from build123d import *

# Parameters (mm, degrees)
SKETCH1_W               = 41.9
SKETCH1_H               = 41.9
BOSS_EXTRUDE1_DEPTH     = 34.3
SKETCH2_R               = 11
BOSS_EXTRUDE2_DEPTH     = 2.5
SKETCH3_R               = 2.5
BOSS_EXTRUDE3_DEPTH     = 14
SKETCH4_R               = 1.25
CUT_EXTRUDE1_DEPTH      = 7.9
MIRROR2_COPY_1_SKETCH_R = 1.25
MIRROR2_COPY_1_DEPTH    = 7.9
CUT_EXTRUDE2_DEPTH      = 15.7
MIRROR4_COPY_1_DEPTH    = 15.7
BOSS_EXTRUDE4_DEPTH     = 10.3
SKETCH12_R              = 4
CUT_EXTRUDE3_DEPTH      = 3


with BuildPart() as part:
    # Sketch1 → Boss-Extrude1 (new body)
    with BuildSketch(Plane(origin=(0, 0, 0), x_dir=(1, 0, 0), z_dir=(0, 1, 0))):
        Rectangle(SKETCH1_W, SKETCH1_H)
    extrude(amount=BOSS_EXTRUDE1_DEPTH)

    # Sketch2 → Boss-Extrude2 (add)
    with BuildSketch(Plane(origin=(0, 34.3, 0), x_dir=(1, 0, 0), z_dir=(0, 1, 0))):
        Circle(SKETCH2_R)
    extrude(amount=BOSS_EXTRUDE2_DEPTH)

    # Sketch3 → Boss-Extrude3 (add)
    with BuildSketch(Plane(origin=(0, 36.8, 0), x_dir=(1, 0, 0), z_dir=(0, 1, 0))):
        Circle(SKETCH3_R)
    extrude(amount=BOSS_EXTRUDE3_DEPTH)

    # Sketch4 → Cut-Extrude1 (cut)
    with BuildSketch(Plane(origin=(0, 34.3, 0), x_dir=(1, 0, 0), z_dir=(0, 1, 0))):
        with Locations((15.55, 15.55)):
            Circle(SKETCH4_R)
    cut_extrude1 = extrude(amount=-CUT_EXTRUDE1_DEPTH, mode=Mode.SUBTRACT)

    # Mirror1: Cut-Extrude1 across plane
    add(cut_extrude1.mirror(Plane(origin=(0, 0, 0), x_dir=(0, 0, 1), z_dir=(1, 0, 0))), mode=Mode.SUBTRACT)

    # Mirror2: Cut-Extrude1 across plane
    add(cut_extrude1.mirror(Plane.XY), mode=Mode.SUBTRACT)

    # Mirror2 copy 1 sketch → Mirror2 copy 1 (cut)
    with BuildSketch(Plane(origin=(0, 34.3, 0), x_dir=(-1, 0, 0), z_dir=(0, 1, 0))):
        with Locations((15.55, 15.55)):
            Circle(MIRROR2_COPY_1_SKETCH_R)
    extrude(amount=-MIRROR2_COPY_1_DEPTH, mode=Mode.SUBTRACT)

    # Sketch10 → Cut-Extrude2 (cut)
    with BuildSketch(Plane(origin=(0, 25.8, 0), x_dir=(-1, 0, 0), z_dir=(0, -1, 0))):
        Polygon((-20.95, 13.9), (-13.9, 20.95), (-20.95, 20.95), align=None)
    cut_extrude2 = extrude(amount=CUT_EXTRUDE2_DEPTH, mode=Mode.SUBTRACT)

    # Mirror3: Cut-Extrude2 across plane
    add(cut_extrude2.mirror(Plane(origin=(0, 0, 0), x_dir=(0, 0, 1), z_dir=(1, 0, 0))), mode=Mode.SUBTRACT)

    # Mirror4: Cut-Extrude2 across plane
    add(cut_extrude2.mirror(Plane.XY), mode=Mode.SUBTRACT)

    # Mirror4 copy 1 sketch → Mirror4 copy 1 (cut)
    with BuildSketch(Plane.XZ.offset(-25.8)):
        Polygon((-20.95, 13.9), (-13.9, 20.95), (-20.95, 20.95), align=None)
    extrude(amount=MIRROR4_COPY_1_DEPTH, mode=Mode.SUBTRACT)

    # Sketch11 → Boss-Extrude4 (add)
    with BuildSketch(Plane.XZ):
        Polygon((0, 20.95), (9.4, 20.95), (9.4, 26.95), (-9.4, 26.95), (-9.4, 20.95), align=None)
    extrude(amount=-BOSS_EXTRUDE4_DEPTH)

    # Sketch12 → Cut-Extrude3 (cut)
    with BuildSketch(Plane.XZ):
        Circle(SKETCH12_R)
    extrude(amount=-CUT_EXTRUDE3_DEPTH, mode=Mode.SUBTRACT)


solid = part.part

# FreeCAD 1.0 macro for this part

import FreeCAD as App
import Part
import Sketcher

V = App.Vector


def add_polygon(sketch, points):
    """Adds a closed chain of lines whose ends are joined by coincident constraints."""
    first, n = sketch.GeometryCount, len(points)
    for a, b in zip(points, points[1:] + points[:1]):
        sketch.addGeometry(Part.LineSegment(App.Vector(*a, 0), App.Vector(*b, 0)), False)
    for i in range(n):
        sketch.addConstraint(Sketcher.Constraint("Coincident", first + i, 2, first + (i + 1) % n, 1))

doc = App.newDocument("Part")
body = doc.addObject("PartDesign::Body", "Body")

sketch1 = doc.addObject("Sketcher::SketchObject", "Sketch")
body.addObject(sketch1)
sketch1.AttachmentSupport = (doc.XZ_Plane, [""])
sketch1.MapMode = "FlatFace"
add_polygon(sketch1, [(-21, -21), (-21, 21), (21, 21), (21, -21)])
sketch1.addConstraint([
    Sketcher.Constraint("Vertical", 0),
    Sketcher.Constraint("Horizontal", 1),
    Sketcher.Constraint("Vertical", 2),
    Sketcher.Constraint("Horizontal", 3),
    Sketcher.Constraint("Symmetric", 0, 2, 2, 2, -1, 1),
    Sketcher.Constraint("Equal", 3, 0),
    Sketcher.Constraint("DistanceX", 1, 1, 1, 2, 41.9),
])
pad1 = doc.addObject("PartDesign::Pad", "Pad")
body.addObject(pad1)
pad1.Profile = sketch1
pad1.Length = 34.3
pad1.Reversed = True

sketch2 = doc.addObject("Sketcher::SketchObject", "Sketch001")
body.addObject(sketch2)
sketch2.AttachmentSupport = (doc.XZ_Plane, [""])
sketch2.MapMode = "FlatFace"
sketch2.AttachmentOffset = App.Placement(V(0, 0, -34.3), App.Rotation())
sketch2.addGeometry(Part.Circle(V(0, 0, 0), V(0, 0, 1), 11), False)
sketch2.addConstraint([
    Sketcher.Constraint("Coincident", 0, 3, -1, 1),
    Sketcher.Constraint("Diameter", 0, 22.0),
])
pad2 = doc.addObject("PartDesign::Pad", "Pad001")
body.addObject(pad2)
pad2.Profile = sketch2
pad2.Length = 2.5
pad2.Reversed = True

sketch3 = doc.addObject("Sketcher::SketchObject", "Sketch002")
body.addObject(sketch3)
sketch3.AttachmentSupport = (doc.XZ_Plane, [""])
sketch3.MapMode = "FlatFace"
sketch3.AttachmentOffset = App.Placement(V(0, 0, -36.8), App.Rotation())
sketch3.addGeometry(Part.Circle(V(0, 0, 0), V(0, 0, 1), 2.5), False)
sketch3.addConstraint([
    Sketcher.Constraint("Coincident", 0, 3, -1, 1),
    Sketcher.Constraint("Diameter", 0, 5.0),
])
pad3 = doc.addObject("PartDesign::Pad", "Pad002")
body.addObject(pad3)
pad3.Profile = sketch3
pad3.Length = 14
pad3.Reversed = True

sketch4 = doc.addObject("Sketcher::SketchObject", "Sketch003")
body.addObject(sketch4)
sketch4.AttachmentSupport = (doc.XZ_Plane, [""])
sketch4.MapMode = "FlatFace"
sketch4.AttachmentOffset = App.Placement(V(0, 0, -34.3), App.Rotation())
sketch4.addGeometry(Part.Circle(V(15.6, -15.6, 0), V(0, 0, 1), 1.2), False)
sketch4.addConstraint([
    Sketcher.Constraint("Diameter", 0, 2.5),
    Sketcher.Constraint("DistanceX", -1, 1, 0, 3, 15.55),
    Sketcher.Constraint("DistanceY", 0, 3, -1, 1, 15.55),
])
pocket1 = doc.addObject("PartDesign::Pocket", "Pocket")
body.addObject(pocket1)
pocket1.Profile = sketch4
pocket1.Length = 7.9
pocket1.Reversed = True
doc.recompute()

mirrored = doc.addObject("PartDesign::Mirrored", "Mirrored")
body.addObject(mirrored)
mirrored.Originals = [pocket1]
mirrored.MirrorPlane = (doc.YZ_Plane, [""])
body.Tip = mirrored
doc.recompute()

mirrored2 = doc.addObject("PartDesign::Mirrored", "Mirrored001")
body.addObject(mirrored2)
mirrored2.Originals = [pocket1]
mirrored2.MirrorPlane = (doc.XY_Plane, [""])
body.Tip = mirrored2

sketch5 = doc.addObject("Sketcher::SketchObject", "Sketch004")
body.addObject(sketch5)
sketch5.AttachmentSupport = (doc.XZ_Plane, [""])
sketch5.MapMode = "FlatFace"
sketch5.AttachmentOffset = App.Placement(V(0, 0, -34.3), App.Rotation())
sketch5.addGeometry(Part.Circle(V(-15.6, 15.6, 0), V(0, 0, 1), 1.2), False)
sketch5.addConstraint([
    Sketcher.Constraint("Diameter", 0, 2.5),
    Sketcher.Constraint("DistanceX", 0, 3, -1, 1, 15.55),
    Sketcher.Constraint("DistanceY", -1, 1, 0, 3, 15.55),
])
pocket2 = doc.addObject("PartDesign::Pocket", "Pocket001")
body.addObject(pocket2)
pocket2.Profile = sketch5
pocket2.Length = 7.9
pocket2.Reversed = True

sketch6 = doc.addObject("Sketcher::SketchObject", "Sketch005")
body.addObject(sketch6)
sketch6.AttachmentSupport = (doc.XZ_Plane, [""])
sketch6.MapMode = "FlatFace"
sketch6.AttachmentOffset = App.Placement(V(0, 0, -25.8), App.Rotation())
add_polygon(sketch6, [(21, -14), (14, -21), (21, -21)])
sketch6.addConstraint([
    Sketcher.Constraint("Horizontal", 1),
    Sketcher.Constraint("Vertical", 2),
    Sketcher.Constraint("Equal", 1, 2),
    Sketcher.Constraint("DistanceX", 1, 1, 1, 2, 7.05),
    Sketcher.Constraint("DistanceX", -1, 1, 0, 2, 13.9),
    Sketcher.Constraint("DistanceY", 2, 2, -1, 1, 13.9),
])
pocket3 = doc.addObject("PartDesign::Pocket", "Pocket002")
body.addObject(pocket3)
pocket3.Profile = sketch6
pocket3.Length = 15.7
pocket3.Reversed = True
doc.recompute()

mirrored3 = doc.addObject("PartDesign::Mirrored", "Mirrored002")
body.addObject(mirrored3)
mirrored3.Originals = [pocket3]
mirrored3.MirrorPlane = (doc.YZ_Plane, [""])
body.Tip = mirrored3
doc.recompute()

mirrored4 = doc.addObject("PartDesign::Mirrored", "Mirrored003")
body.addObject(mirrored4)
mirrored4.Originals = [pocket3]
mirrored4.MirrorPlane = (doc.XY_Plane, [""])
body.Tip = mirrored4

sketch7 = doc.addObject("Sketcher::SketchObject", "Sketch006")
body.addObject(sketch7)
sketch7.AttachmentSupport = (doc.XZ_Plane, [""])
sketch7.MapMode = "FlatFace"
sketch7.AttachmentOffset = App.Placement(V(0, 0, -25.8), App.Rotation())
add_polygon(sketch7, [(-21, 14), (-14, 21), (-21, 21)])
sketch7.addConstraint([
    Sketcher.Constraint("Horizontal", 1),
    Sketcher.Constraint("Vertical", 2),
    Sketcher.Constraint("Equal", 1, 2),
    Sketcher.Constraint("DistanceX", 1, 2, 1, 1, 7.05),
    Sketcher.Constraint("DistanceX", 0, 2, -1, 1, 13.9),
    Sketcher.Constraint("DistanceY", -1, 1, 2, 2, 13.9),
])
pocket4 = doc.addObject("PartDesign::Pocket", "Pocket003")
body.addObject(pocket4)
pocket4.Profile = sketch7
pocket4.Length = 15.7
pocket4.Reversed = True

sketch8 = doc.addObject("Sketcher::SketchObject", "Sketch007")
body.addObject(sketch8)
sketch8.AttachmentSupport = (doc.XZ_Plane, [""])
sketch8.MapMode = "FlatFace"
add_polygon(sketch8, [(9, 21), (9, 27), (-9, 27), (-9, 21)])
sketch8.addConstraint([
    Sketcher.Constraint("Vertical", 0),
    Sketcher.Constraint("Horizontal", 1),
    Sketcher.Constraint("Vertical", 2),
    Sketcher.Constraint("Horizontal", 3),
    Sketcher.Constraint("DistanceY", 0, 1, 0, 2, 6.0),
    Sketcher.Constraint("DistanceX", 1, 2, 1, 1, 18.8),
    Sketcher.Constraint("DistanceX", -1, 1, 0, 2, 9.4),
    Sketcher.Constraint("DistanceY", -1, 1, 0, 2, 26.95),
])
pad4 = doc.addObject("PartDesign::Pad", "Pad003")
body.addObject(pad4)
pad4.Profile = sketch8
pad4.Length = 10.3
pad4.Reversed = True

sketch9 = doc.addObject("Sketcher::SketchObject", "Sketch008")
body.addObject(sketch9)
sketch9.AttachmentSupport = (doc.XZ_Plane, [""])
sketch9.MapMode = "FlatFace"
sketch9.addGeometry(Part.Circle(V(0, 0, 0), V(0, 0, 1), 4), False)
sketch9.addConstraint([
    Sketcher.Constraint("Coincident", 0, 3, -1, 1),
    Sketcher.Constraint("Diameter", 0, 8.0),
])
pocket5 = doc.addObject("PartDesign::Pocket", "Pocket004")
body.addObject(pocket5)
pocket5.Profile = sketch9
pocket5.Length = 3

doc.recompute()
